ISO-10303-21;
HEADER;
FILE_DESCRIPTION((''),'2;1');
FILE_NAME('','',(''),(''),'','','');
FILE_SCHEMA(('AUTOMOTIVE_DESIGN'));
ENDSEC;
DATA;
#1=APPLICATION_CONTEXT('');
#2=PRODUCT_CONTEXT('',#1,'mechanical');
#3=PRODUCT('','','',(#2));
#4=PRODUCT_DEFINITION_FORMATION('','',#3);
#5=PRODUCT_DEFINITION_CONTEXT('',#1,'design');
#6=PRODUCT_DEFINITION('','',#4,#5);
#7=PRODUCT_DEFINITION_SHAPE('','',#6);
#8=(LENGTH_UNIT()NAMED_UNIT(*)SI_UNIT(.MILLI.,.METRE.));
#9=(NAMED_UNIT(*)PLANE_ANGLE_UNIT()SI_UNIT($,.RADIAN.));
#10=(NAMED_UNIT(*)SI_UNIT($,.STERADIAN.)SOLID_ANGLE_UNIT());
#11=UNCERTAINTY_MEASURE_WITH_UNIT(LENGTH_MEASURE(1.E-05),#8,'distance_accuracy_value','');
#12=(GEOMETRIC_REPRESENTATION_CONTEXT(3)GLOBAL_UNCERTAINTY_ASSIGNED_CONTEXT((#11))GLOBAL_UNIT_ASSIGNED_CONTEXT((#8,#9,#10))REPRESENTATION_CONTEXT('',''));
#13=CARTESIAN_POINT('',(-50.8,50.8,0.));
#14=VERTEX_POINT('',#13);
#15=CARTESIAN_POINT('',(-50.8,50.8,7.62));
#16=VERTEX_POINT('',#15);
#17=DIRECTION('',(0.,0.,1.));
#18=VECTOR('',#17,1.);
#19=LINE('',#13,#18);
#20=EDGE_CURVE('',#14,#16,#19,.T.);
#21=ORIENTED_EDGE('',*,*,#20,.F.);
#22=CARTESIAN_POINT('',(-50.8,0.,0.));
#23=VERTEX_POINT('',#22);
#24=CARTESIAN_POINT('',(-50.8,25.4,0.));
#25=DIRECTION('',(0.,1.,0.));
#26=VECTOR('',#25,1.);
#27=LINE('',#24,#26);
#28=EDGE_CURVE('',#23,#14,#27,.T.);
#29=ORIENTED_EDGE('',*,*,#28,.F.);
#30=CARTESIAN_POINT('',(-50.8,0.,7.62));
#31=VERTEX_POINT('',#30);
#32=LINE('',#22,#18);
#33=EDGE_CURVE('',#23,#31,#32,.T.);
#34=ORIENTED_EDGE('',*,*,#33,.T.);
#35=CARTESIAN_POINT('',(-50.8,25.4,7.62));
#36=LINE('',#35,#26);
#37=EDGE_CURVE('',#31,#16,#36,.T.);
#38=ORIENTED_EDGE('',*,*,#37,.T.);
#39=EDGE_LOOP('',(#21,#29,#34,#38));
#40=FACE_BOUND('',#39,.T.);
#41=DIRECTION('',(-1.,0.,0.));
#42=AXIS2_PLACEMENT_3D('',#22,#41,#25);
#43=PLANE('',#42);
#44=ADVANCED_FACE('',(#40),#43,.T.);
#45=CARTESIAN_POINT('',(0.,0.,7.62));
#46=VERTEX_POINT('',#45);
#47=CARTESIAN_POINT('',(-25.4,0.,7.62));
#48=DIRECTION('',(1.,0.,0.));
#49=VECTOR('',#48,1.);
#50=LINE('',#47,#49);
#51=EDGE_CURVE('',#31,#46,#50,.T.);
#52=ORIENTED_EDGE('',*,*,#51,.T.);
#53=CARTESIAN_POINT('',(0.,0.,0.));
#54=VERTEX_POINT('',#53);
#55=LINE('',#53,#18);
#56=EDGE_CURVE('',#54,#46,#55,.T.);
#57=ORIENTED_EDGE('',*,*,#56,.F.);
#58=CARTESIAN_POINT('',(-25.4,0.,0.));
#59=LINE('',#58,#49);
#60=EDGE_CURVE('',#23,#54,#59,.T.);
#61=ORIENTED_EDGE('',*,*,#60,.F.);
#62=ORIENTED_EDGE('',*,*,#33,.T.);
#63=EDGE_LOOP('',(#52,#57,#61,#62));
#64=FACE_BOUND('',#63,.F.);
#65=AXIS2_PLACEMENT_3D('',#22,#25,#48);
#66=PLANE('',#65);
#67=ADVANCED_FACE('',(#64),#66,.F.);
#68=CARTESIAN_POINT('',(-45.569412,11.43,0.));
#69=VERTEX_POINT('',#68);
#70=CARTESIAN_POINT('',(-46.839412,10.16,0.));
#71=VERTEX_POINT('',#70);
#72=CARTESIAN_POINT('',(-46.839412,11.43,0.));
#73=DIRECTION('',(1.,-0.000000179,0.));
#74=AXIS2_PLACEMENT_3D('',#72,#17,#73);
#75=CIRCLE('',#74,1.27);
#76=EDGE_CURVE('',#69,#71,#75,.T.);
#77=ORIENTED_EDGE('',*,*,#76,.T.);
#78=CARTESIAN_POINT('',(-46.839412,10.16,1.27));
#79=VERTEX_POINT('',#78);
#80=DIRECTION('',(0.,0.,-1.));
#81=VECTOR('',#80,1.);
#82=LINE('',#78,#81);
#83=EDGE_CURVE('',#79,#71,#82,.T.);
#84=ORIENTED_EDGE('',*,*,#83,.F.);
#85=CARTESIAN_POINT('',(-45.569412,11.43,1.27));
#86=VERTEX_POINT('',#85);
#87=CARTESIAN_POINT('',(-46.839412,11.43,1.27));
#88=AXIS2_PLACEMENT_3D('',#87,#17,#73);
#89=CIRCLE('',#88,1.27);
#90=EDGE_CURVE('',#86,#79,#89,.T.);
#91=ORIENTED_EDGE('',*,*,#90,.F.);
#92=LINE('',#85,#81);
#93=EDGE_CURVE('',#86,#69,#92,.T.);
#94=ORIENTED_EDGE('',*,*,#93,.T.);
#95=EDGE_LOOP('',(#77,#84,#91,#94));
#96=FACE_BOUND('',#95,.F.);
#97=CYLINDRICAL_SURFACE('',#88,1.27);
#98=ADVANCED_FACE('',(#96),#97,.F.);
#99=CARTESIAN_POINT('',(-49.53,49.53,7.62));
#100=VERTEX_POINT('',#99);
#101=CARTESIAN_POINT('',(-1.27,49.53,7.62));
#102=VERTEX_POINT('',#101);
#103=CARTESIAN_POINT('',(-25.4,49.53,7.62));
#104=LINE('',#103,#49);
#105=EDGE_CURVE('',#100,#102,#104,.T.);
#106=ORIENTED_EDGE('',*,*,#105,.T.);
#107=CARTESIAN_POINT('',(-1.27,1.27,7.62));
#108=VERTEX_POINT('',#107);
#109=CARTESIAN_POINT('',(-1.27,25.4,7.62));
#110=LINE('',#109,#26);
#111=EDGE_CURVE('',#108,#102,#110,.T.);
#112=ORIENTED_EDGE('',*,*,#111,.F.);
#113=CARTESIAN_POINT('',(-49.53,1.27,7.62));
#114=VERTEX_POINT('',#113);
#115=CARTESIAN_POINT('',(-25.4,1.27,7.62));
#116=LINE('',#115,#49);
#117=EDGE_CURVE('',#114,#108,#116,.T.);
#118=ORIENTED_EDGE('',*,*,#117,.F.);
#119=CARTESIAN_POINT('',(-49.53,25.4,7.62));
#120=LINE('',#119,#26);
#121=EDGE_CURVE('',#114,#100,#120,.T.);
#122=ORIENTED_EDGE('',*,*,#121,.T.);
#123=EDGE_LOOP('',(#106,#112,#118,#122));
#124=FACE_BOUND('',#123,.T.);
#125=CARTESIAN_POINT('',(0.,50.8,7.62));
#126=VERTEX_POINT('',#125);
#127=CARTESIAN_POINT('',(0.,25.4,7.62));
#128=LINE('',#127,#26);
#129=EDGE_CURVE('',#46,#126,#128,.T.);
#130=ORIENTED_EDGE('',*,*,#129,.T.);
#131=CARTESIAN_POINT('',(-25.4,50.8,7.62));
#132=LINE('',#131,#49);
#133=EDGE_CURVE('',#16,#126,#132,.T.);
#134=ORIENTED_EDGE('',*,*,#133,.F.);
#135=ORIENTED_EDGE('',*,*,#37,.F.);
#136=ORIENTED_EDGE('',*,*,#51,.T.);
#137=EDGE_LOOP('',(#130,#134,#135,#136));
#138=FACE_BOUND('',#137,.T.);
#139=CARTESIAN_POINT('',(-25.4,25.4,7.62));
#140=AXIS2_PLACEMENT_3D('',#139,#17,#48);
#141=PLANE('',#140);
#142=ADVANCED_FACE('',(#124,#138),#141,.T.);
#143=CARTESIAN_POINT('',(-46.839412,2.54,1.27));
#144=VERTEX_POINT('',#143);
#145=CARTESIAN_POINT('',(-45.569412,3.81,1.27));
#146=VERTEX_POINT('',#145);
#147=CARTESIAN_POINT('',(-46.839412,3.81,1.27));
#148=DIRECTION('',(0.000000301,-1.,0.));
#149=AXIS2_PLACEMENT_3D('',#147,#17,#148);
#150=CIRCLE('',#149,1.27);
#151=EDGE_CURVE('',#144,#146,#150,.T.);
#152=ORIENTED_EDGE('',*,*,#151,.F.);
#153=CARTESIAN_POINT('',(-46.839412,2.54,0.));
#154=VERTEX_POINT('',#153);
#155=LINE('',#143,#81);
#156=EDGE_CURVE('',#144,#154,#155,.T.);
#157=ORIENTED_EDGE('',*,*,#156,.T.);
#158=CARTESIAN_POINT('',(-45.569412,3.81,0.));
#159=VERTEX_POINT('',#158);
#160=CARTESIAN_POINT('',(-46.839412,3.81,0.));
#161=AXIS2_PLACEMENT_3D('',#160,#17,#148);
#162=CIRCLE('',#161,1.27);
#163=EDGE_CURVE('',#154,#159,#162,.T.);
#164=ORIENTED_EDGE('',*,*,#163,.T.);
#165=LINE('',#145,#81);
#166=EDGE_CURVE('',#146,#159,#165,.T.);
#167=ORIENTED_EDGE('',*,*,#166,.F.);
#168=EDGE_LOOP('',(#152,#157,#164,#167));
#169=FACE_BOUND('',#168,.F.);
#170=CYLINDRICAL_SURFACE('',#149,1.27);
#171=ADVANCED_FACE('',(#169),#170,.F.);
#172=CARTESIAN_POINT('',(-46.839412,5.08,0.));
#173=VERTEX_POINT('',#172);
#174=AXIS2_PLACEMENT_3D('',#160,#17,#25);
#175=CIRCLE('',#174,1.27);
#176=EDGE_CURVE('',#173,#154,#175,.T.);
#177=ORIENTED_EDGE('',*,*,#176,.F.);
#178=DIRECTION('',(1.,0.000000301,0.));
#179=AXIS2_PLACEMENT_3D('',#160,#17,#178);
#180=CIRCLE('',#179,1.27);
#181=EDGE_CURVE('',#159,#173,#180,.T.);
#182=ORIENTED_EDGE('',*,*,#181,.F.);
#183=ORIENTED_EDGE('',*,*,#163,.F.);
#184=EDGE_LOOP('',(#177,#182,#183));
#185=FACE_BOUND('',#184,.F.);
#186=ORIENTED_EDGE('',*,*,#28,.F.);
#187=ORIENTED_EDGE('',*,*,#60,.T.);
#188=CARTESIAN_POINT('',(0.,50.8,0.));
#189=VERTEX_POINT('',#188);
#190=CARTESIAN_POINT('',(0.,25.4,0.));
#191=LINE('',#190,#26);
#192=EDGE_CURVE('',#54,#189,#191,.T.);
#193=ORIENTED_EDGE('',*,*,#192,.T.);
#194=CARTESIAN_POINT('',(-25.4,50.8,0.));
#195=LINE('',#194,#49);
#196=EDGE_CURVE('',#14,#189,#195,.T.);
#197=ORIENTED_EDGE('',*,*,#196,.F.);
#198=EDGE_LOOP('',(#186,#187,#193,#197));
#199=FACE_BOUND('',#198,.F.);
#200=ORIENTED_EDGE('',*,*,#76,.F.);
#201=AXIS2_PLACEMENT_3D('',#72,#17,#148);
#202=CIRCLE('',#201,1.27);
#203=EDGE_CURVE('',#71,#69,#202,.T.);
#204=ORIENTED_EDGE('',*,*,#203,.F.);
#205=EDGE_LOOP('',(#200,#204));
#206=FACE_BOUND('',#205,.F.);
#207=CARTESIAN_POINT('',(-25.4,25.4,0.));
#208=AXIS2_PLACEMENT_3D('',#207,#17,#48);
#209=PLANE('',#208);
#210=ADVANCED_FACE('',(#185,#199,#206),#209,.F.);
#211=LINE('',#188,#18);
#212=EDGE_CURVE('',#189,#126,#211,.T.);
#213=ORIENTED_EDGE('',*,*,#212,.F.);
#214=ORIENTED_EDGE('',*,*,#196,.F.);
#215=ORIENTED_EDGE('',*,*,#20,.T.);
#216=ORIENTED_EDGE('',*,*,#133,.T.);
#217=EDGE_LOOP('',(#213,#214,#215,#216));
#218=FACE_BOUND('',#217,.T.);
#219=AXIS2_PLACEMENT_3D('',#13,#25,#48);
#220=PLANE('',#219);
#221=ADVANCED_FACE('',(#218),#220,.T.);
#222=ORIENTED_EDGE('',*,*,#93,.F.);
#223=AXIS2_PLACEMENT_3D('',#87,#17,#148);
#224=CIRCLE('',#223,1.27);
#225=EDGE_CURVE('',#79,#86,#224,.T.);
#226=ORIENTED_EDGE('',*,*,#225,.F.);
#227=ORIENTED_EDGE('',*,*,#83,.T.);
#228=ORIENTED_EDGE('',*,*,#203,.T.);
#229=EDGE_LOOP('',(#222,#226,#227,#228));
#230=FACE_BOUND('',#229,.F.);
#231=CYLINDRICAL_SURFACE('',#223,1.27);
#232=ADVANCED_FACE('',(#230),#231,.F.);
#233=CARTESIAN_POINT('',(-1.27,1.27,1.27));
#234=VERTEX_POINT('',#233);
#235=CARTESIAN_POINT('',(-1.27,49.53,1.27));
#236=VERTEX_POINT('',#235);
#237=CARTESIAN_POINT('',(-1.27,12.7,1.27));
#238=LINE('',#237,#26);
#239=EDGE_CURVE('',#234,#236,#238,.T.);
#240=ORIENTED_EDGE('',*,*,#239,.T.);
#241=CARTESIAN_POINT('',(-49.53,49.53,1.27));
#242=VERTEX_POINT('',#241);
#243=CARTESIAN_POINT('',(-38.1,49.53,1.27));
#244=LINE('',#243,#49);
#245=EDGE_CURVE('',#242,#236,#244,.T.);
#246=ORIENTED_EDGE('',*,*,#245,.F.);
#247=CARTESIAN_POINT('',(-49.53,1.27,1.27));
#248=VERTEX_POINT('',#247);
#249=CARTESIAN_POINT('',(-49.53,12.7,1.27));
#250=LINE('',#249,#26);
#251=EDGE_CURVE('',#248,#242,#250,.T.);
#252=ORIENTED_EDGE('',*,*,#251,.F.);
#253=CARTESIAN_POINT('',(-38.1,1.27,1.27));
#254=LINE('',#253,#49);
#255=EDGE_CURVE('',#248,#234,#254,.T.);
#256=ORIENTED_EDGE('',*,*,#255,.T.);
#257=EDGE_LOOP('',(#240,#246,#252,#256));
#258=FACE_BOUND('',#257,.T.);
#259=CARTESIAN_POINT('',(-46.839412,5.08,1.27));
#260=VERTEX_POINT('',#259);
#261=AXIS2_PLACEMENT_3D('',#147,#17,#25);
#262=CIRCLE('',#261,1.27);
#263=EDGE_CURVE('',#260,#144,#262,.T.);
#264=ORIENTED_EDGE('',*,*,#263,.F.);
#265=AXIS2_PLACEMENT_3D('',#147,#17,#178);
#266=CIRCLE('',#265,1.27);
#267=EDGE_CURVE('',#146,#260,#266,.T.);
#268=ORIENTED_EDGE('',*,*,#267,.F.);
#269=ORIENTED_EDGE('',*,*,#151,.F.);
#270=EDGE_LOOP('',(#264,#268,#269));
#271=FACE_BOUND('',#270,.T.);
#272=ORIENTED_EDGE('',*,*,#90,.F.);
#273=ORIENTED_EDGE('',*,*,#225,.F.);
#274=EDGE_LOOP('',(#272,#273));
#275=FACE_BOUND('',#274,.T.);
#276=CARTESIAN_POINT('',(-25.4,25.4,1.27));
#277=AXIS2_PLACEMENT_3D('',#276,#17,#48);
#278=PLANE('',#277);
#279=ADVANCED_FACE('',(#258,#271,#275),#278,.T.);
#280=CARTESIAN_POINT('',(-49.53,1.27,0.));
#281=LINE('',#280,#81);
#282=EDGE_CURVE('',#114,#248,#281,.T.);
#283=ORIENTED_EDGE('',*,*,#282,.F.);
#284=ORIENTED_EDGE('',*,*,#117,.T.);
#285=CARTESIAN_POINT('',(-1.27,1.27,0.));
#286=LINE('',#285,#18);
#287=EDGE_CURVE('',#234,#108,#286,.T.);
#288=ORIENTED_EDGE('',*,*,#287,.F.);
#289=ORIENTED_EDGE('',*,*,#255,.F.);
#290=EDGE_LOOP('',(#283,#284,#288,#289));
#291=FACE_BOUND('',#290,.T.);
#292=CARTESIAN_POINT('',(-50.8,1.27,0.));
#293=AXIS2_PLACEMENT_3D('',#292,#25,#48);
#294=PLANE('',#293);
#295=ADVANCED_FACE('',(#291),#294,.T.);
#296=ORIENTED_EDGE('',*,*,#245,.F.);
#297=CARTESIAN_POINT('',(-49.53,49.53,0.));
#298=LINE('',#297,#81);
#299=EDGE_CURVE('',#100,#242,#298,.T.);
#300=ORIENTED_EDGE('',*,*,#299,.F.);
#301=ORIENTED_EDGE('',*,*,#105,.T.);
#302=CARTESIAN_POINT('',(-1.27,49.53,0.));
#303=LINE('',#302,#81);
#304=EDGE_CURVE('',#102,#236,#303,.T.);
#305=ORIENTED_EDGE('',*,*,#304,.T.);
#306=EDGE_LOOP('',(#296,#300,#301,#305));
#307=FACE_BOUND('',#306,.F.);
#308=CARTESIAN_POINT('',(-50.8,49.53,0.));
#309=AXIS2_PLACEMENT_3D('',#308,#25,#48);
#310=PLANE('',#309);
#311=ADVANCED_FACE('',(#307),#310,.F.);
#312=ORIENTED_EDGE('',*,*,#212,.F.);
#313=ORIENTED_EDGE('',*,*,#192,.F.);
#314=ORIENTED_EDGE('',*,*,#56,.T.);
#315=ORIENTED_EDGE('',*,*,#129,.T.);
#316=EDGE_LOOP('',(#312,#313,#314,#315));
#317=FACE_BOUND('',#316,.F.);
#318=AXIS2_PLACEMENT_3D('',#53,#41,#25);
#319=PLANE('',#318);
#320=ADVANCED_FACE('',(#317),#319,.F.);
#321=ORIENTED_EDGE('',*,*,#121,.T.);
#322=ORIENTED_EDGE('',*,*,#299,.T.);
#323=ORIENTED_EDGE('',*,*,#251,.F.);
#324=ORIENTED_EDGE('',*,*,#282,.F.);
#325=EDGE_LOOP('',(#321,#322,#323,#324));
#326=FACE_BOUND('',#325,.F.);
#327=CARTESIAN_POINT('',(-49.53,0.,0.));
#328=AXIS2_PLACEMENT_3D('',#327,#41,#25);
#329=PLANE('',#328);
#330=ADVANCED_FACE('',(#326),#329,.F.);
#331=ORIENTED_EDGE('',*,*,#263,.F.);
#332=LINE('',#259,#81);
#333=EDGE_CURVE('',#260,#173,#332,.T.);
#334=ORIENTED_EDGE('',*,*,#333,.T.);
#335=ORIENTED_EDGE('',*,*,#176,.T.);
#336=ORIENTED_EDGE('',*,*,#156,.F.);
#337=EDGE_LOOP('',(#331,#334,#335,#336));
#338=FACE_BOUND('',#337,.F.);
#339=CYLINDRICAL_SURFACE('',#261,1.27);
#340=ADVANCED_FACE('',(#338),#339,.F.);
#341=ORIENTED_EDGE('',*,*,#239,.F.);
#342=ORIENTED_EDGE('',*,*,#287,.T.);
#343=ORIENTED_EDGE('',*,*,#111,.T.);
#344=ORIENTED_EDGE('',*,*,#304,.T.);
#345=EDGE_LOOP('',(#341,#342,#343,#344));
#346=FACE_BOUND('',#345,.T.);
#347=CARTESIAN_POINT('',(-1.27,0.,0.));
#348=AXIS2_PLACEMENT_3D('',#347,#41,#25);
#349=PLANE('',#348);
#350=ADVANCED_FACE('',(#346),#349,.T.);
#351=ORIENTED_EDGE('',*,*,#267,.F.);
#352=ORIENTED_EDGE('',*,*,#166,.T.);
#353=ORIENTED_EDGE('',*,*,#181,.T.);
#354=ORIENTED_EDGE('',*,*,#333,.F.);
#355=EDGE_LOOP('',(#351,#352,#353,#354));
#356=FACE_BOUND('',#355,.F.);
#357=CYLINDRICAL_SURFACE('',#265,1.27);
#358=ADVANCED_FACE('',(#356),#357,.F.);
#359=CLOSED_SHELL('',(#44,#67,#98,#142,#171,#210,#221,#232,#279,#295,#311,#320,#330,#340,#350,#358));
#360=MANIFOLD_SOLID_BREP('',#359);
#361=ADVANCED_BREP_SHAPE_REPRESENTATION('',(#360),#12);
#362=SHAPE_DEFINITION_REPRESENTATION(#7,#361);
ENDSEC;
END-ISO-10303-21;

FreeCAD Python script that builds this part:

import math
import FreeCAD as App
import Part
import Sketcher
from FreeCAD import Vector
Q = App.Units.Quantity


def faces_at(feature, points):
    """Names of the faces that lie closest to the given points."""
    faces = feature.Shape.Faces
    near = lambda p: min(range(len(faces)), key=lambda i: faces[i].distToShape(Part.Vertex(*p))[0])
    return sorted({f"Face{near(p) + 1}" for p in points})

doc = App.newDocument("Part")
params = doc.addObject("Spreadsheet::Sheet", "Params")
for row, (alias, value) in enumerate([
    ("sketch1_width", "2 in"),
    ("pad1_length", "0.3 in"),
    ("thickness_wall", "0.05 in"),
    ("sketch2_radius", "0.05 in"),
    ("pocket1_length", "1 in"),
], start=1):
    params.set(f"A{row}", alias)
    params.set(f"B{row}", "=" + value)
    params.setAlias(f"B{row}", alias)

body = doc.addObject("PartDesign::Body", "Body")

# Sketch on XY plane
sketch1 = body.newObject("Sketcher::SketchObject", "Sketch")
sketch1.AttachmentSupport = (doc.getObject("XY_Plane"), [""])
sketch1.MapMode = "FlatFace"
sketch1.addGeometry([
    Part.LineSegment(Vector(-51, 51, 0), Vector(-51, 0, 0)),
    Part.LineSegment(Vector(-51, 0, 0), Vector(0, 0, 0)),
    Part.LineSegment(Vector(0, 0, 0), Vector(0, 51, 0)),
    Part.LineSegment(Vector(0, 51, 0), Vector(-51, 51, 0)),
], False)
sketch1.addConstraint([
    Sketcher.Constraint("Coincident", 0, 2, 1, 1),
    Sketcher.Constraint("Coincident", 1, 2, 2, 1),
    Sketcher.Constraint("Coincident", 2, 2, 3, 1),
    Sketcher.Constraint("Coincident", 3, 2, 0, 1),
    Sketcher.Constraint("Vertical", 0),
    Sketcher.Constraint("Horizontal", 1),
    Sketcher.Constraint("Vertical", 2),
    Sketcher.Constraint("Horizontal", 3),
    Sketcher.Constraint("Coincident", 1, 2, -1, 1),
    Sketcher.Constraint("Equal", 3, 0),
    Sketcher.Constraint("DistanceX", 1, 1, 1, 2, Q("2 in")),
])
sketch1.setExpression("Constraints[10]", "Params.sketch1_width")
pad1 = body.newObject("PartDesign::Pad", "Pad")
pad1.Profile = sketch1
pad1.setExpression("Length", "Params.pad1_length")
doc.recompute()

thickness = body.newObject("PartDesign::Thickness", "Thickness")
thickness.Base = (pad1, faces_at(pad1, [(-25.4, 25.4, 7.62)]))
thickness.setExpression("Value", "Params.thickness_wall")
thickness.Reversed = True
thickness.Join = "Arc"

# Sketch on XY plane
sketch2 = body.newObject("Sketcher::SketchObject", "Sketch001")
sketch2.AttachmentSupport = (doc.getObject("XY_Plane"), [""])
sketch2.MapMode = "FlatFace"
sketch2.AttachmentOffset = App.Placement(Vector(0, 0, 0.05 * 25.4), App.Rotation())
sketch2.addGeometry([
    Part.ArcOfCircle(Part.Circle(Vector(-46.8, 11.4, 0), Vector(0, 0, 1), 1.3), math.radians(0), math.radians(270)),  # 0
    Part.ArcOfCircle(Part.Circle(Vector(-46.8, 11.4, 0), Vector(0, 0, 1), 1.3), math.radians(-90), math.radians(0)),  # 1
    Part.ArcOfCircle(Part.Circle(Vector(-46.8, 3.8, 0), Vector(0, 0, 1), 1.3), math.radians(90), math.radians(270)),  # 2
    Part.ArcOfCircle(Part.Circle(Vector(-46.8, 3.8, 0), Vector(0, 0, 1), 1.3), math.radians(-90), math.radians(0)),  # 3
    Part.ArcOfCircle(Part.Circle(Vector(-46.8, 3.8, 0), Vector(0, 0, 1), 1.3), math.radians(0), math.radians(90)),  # 4
], False)
sketch2.addConstraint([
    Sketcher.Constraint("Tangent", 0, 1, 1, 2),
    Sketcher.Constraint("Coincident", 1, 1, 0, 2),
    Sketcher.Constraint("Tangent", 2, 2, 3, 1),
    Sketcher.Constraint("Tangent", 3, 2, 4, 1),
    Sketcher.Constraint("Tangent", 4, 2, 2, 1),
    Sketcher.Constraint("Equal", 1, 2),
    Sketcher.Constraint("Horizontal", 1, 3, 0, 1),
    Sketcher.Constraint("Horizontal", 4, 3, 3, 2),
    Sketcher.Constraint("Vertical", 1, 3, 2, 3),
    Sketcher.Constraint("Vertical", 4, 3, 1, 1),
    Sketcher.Constraint("Vertical", 1, 1, 2, 2),
    Sketcher.Constraint("Vertical", 2, 2, 4, 2),
    Sketcher.Constraint("Radius", 0, Q("0.05 in")),
    Sketcher.Constraint("DistanceY", -1, 1, 1, 1, Q("0.4 in")),
    Sketcher.Constraint("DistanceY", -1, 1, 2, 2, Q("0.1 in")),
    Sketcher.Constraint("DistanceX", 0, 3, -1, 1, 46.839412),
])
sketch2.setExpression("Constraints[12]", "Params.sketch2_radius")
pocket1 = body.newObject("PartDesign::Pocket", "Pocket")
pocket1.Profile = sketch2
pocket1.setExpression("Length", "Params.pocket1_length")

doc.recompute()
